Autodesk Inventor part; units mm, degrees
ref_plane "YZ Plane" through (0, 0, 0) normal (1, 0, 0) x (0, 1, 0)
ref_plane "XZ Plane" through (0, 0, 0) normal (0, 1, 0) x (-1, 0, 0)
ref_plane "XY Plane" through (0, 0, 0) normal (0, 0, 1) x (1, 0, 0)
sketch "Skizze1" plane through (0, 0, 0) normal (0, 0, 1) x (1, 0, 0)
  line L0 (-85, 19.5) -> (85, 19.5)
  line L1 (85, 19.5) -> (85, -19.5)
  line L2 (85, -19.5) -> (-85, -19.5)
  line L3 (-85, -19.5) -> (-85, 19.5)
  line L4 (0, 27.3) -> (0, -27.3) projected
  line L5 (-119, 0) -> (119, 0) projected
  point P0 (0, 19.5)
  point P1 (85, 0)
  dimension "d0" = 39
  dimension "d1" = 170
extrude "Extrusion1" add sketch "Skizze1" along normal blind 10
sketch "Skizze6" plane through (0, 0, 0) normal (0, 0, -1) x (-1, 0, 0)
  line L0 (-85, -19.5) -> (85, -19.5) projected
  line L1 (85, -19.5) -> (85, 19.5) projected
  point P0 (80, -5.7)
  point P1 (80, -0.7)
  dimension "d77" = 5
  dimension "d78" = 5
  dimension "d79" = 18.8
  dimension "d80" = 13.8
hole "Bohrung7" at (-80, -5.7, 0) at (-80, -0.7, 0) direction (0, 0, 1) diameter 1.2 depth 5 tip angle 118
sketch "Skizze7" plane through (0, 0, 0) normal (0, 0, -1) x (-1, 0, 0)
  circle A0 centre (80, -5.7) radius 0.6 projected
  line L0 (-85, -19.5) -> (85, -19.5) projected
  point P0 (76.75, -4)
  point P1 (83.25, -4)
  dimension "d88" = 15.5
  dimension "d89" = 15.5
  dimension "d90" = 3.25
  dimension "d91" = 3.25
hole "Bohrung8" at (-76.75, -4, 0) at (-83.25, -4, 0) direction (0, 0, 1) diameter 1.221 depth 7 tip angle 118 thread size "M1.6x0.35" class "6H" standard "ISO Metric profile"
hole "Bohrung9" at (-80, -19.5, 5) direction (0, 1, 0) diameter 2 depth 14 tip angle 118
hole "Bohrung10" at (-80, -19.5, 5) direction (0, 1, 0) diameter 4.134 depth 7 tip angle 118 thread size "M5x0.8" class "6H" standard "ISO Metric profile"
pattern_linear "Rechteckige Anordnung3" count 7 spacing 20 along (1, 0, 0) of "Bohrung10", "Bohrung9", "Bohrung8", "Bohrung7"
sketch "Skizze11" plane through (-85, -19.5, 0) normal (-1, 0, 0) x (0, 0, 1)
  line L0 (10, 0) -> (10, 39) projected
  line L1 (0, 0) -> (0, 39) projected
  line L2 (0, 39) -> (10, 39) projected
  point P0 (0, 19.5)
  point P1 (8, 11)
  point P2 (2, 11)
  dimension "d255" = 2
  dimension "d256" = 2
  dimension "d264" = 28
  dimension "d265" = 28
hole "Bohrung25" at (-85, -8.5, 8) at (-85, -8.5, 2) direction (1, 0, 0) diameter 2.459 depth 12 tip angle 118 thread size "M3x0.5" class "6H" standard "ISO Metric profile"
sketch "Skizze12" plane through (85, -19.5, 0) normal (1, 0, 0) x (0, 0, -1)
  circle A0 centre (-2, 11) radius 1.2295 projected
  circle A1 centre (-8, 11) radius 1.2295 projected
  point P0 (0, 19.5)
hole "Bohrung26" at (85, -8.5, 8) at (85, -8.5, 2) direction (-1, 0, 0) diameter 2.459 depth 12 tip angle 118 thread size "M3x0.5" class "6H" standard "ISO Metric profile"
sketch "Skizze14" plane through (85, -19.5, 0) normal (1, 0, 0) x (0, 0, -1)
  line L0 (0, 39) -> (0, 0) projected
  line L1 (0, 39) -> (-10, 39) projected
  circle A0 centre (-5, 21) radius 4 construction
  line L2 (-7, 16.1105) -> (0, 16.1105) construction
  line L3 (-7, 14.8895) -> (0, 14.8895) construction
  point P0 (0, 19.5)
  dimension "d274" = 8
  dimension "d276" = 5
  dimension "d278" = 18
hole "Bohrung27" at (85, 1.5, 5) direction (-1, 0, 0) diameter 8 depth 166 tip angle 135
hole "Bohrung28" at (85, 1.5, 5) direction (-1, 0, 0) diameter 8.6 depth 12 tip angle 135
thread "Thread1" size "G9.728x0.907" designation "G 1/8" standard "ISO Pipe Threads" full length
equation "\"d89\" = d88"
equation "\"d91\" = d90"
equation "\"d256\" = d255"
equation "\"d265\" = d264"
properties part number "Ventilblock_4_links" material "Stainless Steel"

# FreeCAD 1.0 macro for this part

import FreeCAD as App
import Part
import Sketcher

V = App.Vector


def add_polygon(sketch, points):
    """Adds a closed chain of lines whose ends are joined by coincident constraints."""
    first, n = sketch.GeometryCount, len(points)
    for a, b in zip(points, points[1:] + points[:1]):
        sketch.addGeometry(Part.LineSegment(App.Vector(*a, 0), App.Vector(*b, 0)), False)
    for i in range(n):
        sketch.addConstraint(Sketcher.Constraint("Coincident", first + i, 2, first + (i + 1) % n, 1))

doc = App.newDocument("Part")
body = doc.addObject("PartDesign::Body", "Body")

# Sketch on XY plane
sketch1 = body.newObject("Sketcher::SketchObject", "Sketch")
sketch1.AttachmentSupport = (doc.getObject("XY_Plane"), [""])
sketch1.MapMode = "FlatFace"
add_polygon(sketch1, [(-85, 20), (-85, -20), (85, -20), (85, 20)])  # lines 0-3
sketch1.addConstraint(Sketcher.Constraint("Vertical", 0))
sketch1.addConstraint(Sketcher.Constraint("Horizontal", 1))
sketch1.addConstraint(Sketcher.Constraint("Vertical", 2))
sketch1.addConstraint(Sketcher.Constraint("Horizontal", 3))
sketch1.addConstraint(Sketcher.Constraint("Symmetric", 0, 2, 2, 2, -1, 1))
sketch1.addConstraint(Sketcher.Constraint("DistanceX", 1, 1, 1, 2, 170.0))
sketch1.addConstraint(Sketcher.Constraint("DistanceY", 0, 2, 0, 1, 39.0))
pad1 = body.newObject("PartDesign::Pad", "Pad")
pad1.Profile = sketch1
pad1.Length = 10

# Sketch on XY plane
sketch2 = body.newObject("Sketcher::SketchObject", "Sketch001")
sketch2.AttachmentSupport = (doc.getObject("XY_Plane"), [""])
sketch2.MapMode = "FlatFace"
sketch2.addGeometry(Part.Circle(V(-80, -5.7, 0), V(0, 0, 1), 0.6), False)
sketch2.addGeometry(Part.Circle(V(-80, -0.7, 0), V(0, 0, 1), 0.6), False)
sketch2.addConstraint(Sketcher.Constraint("Equal", 0, 1))
sketch2.addConstraint(Sketcher.Constraint("Vertical", 0, 3, 1, 3))
sketch2.addConstraint(Sketcher.Constraint("Diameter", 0, 1.2))
sketch2.addConstraint(Sketcher.Constraint("DistanceX", 0, 3, -1, 1, 80.0))
sketch2.addConstraint(Sketcher.Constraint("DistanceY", 0, 3, 1, 3, 5.0))
sketch2.addConstraint(Sketcher.Constraint("DistanceY", 0, 3, -1, 1, 5.7))
doc.recompute()
hole = body.newObject("PartDesign::Hole", "Hole")
hole.Profile = sketch2
hole.ThreadType = "None"
hole.Diameter = 1.2
hole.DepthType = "Dimension"
hole.Depth = 5
hole.DrillPoint = "Angled"
hole.DrillPointAngle = 118
hole.Reversed = True

# Sketch on XY plane
sketch3 = body.newObject("Sketcher::SketchObject", "Sketch002")
sketch3.AttachmentSupport = (doc.getObject("XY_Plane"), [""])
sketch3.MapMode = "FlatFace"
sketch3.addGeometry(Part.Circle(V(-76.8, -4, 0), V(0, 0, 1), 0.6), False)
sketch3.addGeometry(Part.Circle(V(-83.2, -4, 0), V(0, 0, 1), 0.6), False)
sketch3.addConstraint(Sketcher.Constraint("Equal", 0, 1))
sketch3.addConstraint(Sketcher.Constraint("Horizontal", 0, 3, 1, 3))
sketch3.addConstraint(Sketcher.Constraint("Diameter", 0, 1.221))
sketch3.addConstraint(Sketcher.Constraint("DistanceY", 0, 3, -1, 1, 4.0))
sketch3.addConstraint(Sketcher.Constraint("DistanceX", 1, 3, 0, 3, 6.5))
sketch3.addConstraint(Sketcher.Constraint("DistanceX", 0, 3, -1, 1, 76.75))
doc.recompute()
hole2 = body.newObject("PartDesign::Hole", "Hole001")
hole2.Profile = sketch3
hole2.ThreadType = "None"
hole2.Diameter = 1.221
hole2.DepthType = "Dimension"
hole2.Depth = 7
hole2.DrillPoint = "Angled"
hole2.DrillPointAngle = 118
hole2.Reversed = True

# Sketch on XZ plane
sketch4 = body.newObject("Sketcher::SketchObject", "Sketch003")
sketch4.AttachmentSupport = (doc.getObject("XZ_Plane"), [""])
sketch4.MapMode = "FlatFace"
sketch4.AttachmentOffset = App.Placement(V(0, 0, 19.5), App.Rotation())
sketch4.addGeometry(Part.Circle(V(-80, 5, 0), V(0, 0, 1), 1), False)
sketch4.addConstraint(Sketcher.Constraint("Diameter", 0, 2.0))
sketch4.addConstraint(Sketcher.Constraint("DistanceX", 0, 3, -1, 1, 80.0))
sketch4.addConstraint(Sketcher.Constraint("DistanceY", -1, 1, 0, 3, 5.0))
doc.recompute()
hole3 = body.newObject("PartDesign::Hole", "Hole002")
hole3.Profile = sketch4
hole3.ThreadType = "None"
hole3.Diameter = 2
hole3.DepthType = "Dimension"
hole3.Depth = 14
hole3.DrillPoint = "Angled"
hole3.DrillPointAngle = 118

# Sketch on XZ plane
sketch5 = body.newObject("Sketcher::SketchObject", "Sketch004")
sketch5.AttachmentSupport = (doc.getObject("XZ_Plane"), [""])
sketch5.MapMode = "FlatFace"
sketch5.AttachmentOffset = App.Placement(V(0, 0, 19.5), App.Rotation())
sketch5.addGeometry(Part.Circle(V(-80, 5, 0), V(0, 0, 1), 2.1), False)
sketch5.addConstraint(Sketcher.Constraint("Diameter", 0, 4.134))
sketch5.addConstraint(Sketcher.Constraint("DistanceX", 0, 3, -1, 1, 80.0))
sketch5.addConstraint(Sketcher.Constraint("DistanceY", -1, 1, 0, 3, 5.0))
doc.recompute()
hole4 = body.newObject("PartDesign::Hole", "Hole003")
hole4.Profile = sketch5
hole4.ThreadType = "None"
hole4.Diameter = 4.134
hole4.DepthType = "Dimension"
hole4.Depth = 7
hole4.DrillPoint = "Angled"
hole4.DrillPointAngle = 118
doc.recompute()

linearpattern = body.newObject("PartDesign::LinearPattern", "LinearPattern")
linearpattern.Originals = [hole4, hole3, hole2, hole]
linearpattern.Direction = (doc.getObject("X_Axis"), [""])
linearpattern.Mode = "offset"
linearpattern.Offset = 20
linearpattern.Occurrences = 7
body.Tip = linearpattern

# Sketch on YZ plane
sketch6 = body.newObject("Sketcher::SketchObject", "Sketch005")
sketch6.AttachmentSupport = (doc.getObject("YZ_Plane"), [""])
sketch6.MapMode = "FlatFace"
sketch6.AttachmentOffset = App.Placement(V(0, 0, -85), App.Rotation())
sketch6.addGeometry(Part.Circle(V(-8.5, 8, 0), V(0, 0, 1), 1.2), False)
sketch6.addGeometry(Part.Circle(V(-8.5, 2, 0), V(0, 0, 1), 1.2), False)
sketch6.addConstraint(Sketcher.Constraint("Equal", 0, 1))
sketch6.addConstraint(Sketcher.Constraint("Vertical", 0, 3, 1, 3))
sketch6.addConstraint(Sketcher.Constraint("Diameter", 0, 2.459))
sketch6.addConstraint(Sketcher.Constraint("DistanceY", -1, 1, 0, 3, 8.0))
sketch6.addConstraint(Sketcher.Constraint("DistanceY", -1, 1, 1, 3, 2.0))
sketch6.addConstraint(Sketcher.Constraint("DistanceX", 0, 3, -1, 1, 8.5))
doc.recompute()
hole5 = body.newObject("PartDesign::Hole", "Hole004")
hole5.Profile = sketch6
hole5.ThreadType = "None"
hole5.Diameter = 2.459
hole5.DepthType = "Dimension"
hole5.Depth = 12
hole5.DrillPoint = "Angled"
hole5.DrillPointAngle = 118
hole5.Reversed = True

# Sketch on YZ plane
sketch7 = body.newObject("Sketcher::SketchObject", "Sketch006")
sketch7.AttachmentSupport = (doc.getObject("YZ_Plane"), [""])
sketch7.MapMode = "FlatFace"
sketch7.AttachmentOffset = App.Placement(V(0, 0, 85), App.Rotation())
sketch7.addGeometry(Part.Circle(V(-8.5, 8, 0), V(0, 0, 1), 1.2), False)
sketch7.addGeometry(Part.Circle(V(-8.5, 2, 0), V(0, 0, 1), 1.2), False)
sketch7.addConstraint(Sketcher.Constraint("Equal", 0, 1))
sketch7.addConstraint(Sketcher.Constraint("Vertical", 0, 3, 1, 3))
sketch7.addConstraint(Sketcher.Constraint("Diameter", 0, 2.459))
sketch7.addConstraint(Sketcher.Constraint("DistanceY", -1, 1, 0, 3, 8.0))
sketch7.addConstraint(Sketcher.Constraint("DistanceY", -1, 1, 1, 3, 2.0))
sketch7.addConstraint(Sketcher.Constraint("DistanceX", 0, 3, -1, 1, 8.5))
doc.recompute()
hole6 = body.newObject("PartDesign::Hole", "Hole005")
hole6.Profile = sketch7
hole6.ThreadType = "None"
hole6.Diameter = 2.459
hole6.DepthType = "Dimension"
hole6.Depth = 12
hole6.DrillPoint = "Angled"
hole6.DrillPointAngle = 118

# Sketch on YZ plane
sketch8 = body.newObject("Sketcher::SketchObject", "Sketch007")
sketch8.AttachmentSupport = (doc.getObject("YZ_Plane"), [""])
sketch8.MapMode = "FlatFace"
sketch8.AttachmentOffset = App.Placement(V(0, 0, 85), App.Rotation())
sketch8.addGeometry(Part.Circle(V(1.5, 5, 0), V(0, 0, 1), 4), False)
sketch8.addConstraint(Sketcher.Constraint("Diameter", 0, 8.0))
sketch8.addConstraint(Sketcher.Constraint("DistanceY", -1, 1, 0, 3, 5.0))
sketch8.addConstraint(Sketcher.Constraint("DistanceX", -1, 1, 0, 3, 1.5))
doc.recompute()
hole7 = body.newObject("PartDesign::Hole", "Hole006")
hole7.Profile = sketch8
hole7.ThreadType = "None"
hole7.Diameter = 8
hole7.DepthType = "Dimension"
hole7.Depth = 166
hole7.DrillPoint = "Angled"
hole7.DrillPointAngle = 135

# Sketch on YZ plane
sketch9 = body.newObject("Sketcher::SketchObject", "Sketch008")
sketch9.AttachmentSupport = (doc.getObject("YZ_Plane"), [""])
sketch9.MapMode = "FlatFace"
sketch9.AttachmentOffset = App.Placement(V(0, 0, 85), App.Rotation())
sketch9.addGeometry(Part.Circle(V(1.5, 5, 0), V(0, 0, 1), 4.3), False)
sketch9.addConstraint(Sketcher.Constraint("Diameter", 0, 8.6))
sketch9.addConstraint(Sketcher.Constraint("DistanceY", -1, 1, 0, 3, 5.0))
sketch9.addConstraint(Sketcher.Constraint("DistanceX", -1, 1, 0, 3, 1.5))
doc.recompute()
hole8 = body.newObject("PartDesign::Hole", "Hole007")
hole8.Profile = sketch9
hole8.ThreadType = "None"
hole8.Diameter = 8.6
hole8.DepthType = "Dimension"
hole8.Depth = 12
hole8.DrillPoint = "Angled"
hole8.DrillPointAngle = 135

doc.recompute()
